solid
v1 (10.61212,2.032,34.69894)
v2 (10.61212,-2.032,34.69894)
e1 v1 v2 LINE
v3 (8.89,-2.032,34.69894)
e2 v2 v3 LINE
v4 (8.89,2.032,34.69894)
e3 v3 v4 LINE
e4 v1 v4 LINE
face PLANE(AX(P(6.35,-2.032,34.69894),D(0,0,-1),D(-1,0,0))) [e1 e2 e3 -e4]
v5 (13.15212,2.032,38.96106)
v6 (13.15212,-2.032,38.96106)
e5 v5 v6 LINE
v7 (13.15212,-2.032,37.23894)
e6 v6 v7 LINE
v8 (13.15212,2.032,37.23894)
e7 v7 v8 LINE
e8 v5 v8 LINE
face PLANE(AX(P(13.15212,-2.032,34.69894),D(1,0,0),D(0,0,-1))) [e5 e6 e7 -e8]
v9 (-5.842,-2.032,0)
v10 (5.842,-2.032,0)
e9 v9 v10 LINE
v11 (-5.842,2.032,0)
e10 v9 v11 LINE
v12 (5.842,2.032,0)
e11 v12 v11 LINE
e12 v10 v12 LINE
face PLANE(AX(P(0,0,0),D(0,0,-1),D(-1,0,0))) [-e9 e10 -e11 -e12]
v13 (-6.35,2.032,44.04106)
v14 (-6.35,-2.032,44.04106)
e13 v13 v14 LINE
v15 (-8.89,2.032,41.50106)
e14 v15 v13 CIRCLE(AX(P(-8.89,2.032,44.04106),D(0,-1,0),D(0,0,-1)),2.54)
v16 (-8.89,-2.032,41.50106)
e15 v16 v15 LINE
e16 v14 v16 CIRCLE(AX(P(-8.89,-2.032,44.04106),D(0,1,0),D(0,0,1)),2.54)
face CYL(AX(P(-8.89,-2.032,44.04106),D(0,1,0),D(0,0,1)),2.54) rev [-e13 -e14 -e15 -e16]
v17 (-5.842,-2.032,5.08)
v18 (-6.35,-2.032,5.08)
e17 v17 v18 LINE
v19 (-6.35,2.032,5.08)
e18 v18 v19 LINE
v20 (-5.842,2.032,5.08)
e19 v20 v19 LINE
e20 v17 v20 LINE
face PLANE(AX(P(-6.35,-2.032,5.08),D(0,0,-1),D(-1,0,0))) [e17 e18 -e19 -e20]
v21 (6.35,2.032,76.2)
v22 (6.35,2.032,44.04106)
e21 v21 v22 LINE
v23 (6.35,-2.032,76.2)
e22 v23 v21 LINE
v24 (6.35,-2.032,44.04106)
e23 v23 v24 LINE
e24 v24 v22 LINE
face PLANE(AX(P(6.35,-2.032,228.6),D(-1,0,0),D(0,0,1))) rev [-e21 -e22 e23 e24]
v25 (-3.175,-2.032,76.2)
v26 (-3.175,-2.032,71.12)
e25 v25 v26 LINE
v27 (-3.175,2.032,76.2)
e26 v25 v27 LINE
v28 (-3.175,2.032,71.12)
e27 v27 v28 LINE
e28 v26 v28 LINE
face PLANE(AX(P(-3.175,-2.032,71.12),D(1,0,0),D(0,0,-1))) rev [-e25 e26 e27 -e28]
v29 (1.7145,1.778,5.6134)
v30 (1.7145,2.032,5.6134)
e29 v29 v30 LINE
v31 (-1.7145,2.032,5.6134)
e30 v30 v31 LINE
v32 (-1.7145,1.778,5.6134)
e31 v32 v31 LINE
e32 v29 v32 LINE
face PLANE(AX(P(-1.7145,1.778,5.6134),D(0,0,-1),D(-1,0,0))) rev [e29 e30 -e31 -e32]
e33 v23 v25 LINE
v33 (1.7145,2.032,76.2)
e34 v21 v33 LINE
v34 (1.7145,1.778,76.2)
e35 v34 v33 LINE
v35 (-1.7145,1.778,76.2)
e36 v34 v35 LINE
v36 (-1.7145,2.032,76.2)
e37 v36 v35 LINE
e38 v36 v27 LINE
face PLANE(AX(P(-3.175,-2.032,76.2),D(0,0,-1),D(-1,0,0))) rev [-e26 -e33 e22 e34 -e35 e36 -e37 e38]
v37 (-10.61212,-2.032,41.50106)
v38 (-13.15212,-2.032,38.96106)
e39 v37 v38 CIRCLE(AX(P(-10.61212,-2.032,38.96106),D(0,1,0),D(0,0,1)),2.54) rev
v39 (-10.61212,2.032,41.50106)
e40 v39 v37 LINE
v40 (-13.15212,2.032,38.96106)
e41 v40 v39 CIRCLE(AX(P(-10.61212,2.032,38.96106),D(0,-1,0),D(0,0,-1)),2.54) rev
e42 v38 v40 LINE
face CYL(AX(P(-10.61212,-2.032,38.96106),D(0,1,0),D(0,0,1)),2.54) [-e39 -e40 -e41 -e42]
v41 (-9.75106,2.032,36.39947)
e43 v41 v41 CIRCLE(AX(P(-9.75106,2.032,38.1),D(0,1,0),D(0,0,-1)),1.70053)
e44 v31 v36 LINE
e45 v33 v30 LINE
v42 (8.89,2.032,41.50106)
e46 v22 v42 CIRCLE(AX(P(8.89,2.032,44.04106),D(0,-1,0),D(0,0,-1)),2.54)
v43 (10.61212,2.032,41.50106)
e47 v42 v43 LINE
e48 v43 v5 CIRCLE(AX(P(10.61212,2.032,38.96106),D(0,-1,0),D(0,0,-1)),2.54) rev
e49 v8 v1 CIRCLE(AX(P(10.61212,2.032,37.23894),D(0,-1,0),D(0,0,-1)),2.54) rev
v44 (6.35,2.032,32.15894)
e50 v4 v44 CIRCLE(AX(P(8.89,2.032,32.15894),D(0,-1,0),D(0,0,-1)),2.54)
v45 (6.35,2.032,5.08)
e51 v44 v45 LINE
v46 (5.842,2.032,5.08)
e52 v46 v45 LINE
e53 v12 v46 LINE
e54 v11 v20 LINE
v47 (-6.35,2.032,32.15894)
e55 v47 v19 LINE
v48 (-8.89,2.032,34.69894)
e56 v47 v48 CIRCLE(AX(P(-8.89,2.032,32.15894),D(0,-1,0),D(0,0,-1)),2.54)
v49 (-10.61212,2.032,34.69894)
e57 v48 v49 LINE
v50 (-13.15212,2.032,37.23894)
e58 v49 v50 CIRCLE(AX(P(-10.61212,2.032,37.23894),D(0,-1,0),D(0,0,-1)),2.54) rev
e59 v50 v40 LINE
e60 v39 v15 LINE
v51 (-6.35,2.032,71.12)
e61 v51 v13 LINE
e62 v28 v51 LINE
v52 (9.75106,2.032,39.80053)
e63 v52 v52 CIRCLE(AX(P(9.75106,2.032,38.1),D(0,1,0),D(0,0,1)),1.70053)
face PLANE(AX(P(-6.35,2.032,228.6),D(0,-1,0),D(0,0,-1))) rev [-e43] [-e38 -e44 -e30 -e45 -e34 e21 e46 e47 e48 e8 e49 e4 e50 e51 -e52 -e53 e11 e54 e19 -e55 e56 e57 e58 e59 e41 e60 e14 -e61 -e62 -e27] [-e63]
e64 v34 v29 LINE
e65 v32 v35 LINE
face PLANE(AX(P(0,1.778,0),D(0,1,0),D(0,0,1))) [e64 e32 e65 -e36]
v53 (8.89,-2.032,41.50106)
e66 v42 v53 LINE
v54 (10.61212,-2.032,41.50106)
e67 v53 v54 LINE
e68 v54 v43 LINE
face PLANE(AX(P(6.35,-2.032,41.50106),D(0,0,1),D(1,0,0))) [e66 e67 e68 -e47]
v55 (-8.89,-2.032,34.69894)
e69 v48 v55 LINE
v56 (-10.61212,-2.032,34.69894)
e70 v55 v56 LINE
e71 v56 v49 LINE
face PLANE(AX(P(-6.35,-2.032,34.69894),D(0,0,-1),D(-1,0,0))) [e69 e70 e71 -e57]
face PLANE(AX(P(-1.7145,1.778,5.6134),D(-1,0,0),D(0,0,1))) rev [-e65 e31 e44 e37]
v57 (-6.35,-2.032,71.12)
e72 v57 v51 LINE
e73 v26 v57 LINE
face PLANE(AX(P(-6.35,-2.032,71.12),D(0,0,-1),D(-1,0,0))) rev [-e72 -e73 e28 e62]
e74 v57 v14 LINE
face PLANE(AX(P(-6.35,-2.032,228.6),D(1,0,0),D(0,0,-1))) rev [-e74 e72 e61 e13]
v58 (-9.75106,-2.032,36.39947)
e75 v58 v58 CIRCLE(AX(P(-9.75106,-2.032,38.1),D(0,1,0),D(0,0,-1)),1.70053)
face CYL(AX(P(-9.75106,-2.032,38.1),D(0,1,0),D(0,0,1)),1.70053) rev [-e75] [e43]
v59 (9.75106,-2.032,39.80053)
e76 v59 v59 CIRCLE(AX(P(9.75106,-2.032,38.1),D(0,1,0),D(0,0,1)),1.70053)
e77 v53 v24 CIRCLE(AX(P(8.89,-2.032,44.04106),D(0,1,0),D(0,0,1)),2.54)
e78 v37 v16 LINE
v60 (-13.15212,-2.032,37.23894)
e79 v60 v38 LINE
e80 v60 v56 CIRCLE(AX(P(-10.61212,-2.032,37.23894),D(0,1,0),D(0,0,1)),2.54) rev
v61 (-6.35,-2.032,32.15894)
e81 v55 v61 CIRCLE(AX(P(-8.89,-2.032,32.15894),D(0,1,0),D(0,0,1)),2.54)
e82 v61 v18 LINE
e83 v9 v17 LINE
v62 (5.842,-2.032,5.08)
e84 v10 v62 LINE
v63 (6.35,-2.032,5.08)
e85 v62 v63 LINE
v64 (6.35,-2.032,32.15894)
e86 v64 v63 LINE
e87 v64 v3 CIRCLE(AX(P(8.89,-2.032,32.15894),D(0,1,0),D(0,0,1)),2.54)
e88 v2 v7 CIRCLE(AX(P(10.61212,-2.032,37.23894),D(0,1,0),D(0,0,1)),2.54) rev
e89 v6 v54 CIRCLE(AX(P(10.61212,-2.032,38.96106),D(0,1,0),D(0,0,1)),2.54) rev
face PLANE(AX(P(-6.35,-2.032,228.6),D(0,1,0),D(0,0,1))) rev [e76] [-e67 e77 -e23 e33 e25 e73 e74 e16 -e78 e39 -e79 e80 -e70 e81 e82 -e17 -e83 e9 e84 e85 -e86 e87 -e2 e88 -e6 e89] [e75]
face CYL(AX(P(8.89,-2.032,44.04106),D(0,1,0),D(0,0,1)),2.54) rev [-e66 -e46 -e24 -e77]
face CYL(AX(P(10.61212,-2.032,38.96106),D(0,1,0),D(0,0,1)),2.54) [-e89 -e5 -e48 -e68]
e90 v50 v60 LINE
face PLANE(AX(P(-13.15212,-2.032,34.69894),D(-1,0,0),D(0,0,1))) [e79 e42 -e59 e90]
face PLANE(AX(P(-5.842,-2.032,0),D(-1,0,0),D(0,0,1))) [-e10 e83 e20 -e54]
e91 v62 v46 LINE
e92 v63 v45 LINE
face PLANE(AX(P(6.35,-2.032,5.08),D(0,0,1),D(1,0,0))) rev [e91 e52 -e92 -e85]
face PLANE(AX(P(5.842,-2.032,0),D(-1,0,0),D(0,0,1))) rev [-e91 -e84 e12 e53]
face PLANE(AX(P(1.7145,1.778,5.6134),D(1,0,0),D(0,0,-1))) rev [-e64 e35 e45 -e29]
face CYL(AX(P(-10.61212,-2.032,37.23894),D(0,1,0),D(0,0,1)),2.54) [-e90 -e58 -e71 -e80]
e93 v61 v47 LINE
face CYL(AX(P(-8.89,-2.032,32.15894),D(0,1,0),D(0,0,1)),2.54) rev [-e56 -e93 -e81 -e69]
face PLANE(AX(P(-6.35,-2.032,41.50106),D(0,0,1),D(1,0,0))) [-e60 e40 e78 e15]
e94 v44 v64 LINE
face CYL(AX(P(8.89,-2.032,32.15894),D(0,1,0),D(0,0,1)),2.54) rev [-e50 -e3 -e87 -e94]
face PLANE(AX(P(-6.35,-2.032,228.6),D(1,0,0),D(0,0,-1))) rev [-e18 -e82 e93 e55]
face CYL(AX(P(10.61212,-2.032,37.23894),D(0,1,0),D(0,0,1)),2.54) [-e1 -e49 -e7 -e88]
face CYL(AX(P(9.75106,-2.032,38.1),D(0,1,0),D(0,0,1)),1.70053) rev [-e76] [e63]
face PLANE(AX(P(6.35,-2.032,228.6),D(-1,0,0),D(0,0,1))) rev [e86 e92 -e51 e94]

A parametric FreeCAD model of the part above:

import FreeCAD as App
import Part
import Sketcher

V = App.Vector
Q = App.Units.Quantity


def edges_at(feature, points):
    """Names of the edges that pass closest to the given points."""
    edges = feature.Shape.Edges
    near = lambda p: min(range(len(edges)), key=lambda i: edges[i].distToShape(Part.Vertex(*p))[0])
    return sorted({f"Edge{near(p) + 1}" for p in points})


def add_polygon(sketch, points):
    """Adds a closed chain of lines whose ends are joined by coincident constraints."""
    first, n = sketch.GeometryCount, len(points)
    for a, b in zip(points, points[1:] + points[:1]):
        sketch.addGeometry(Part.LineSegment(App.Vector(*a, 0), App.Vector(*b, 0)), False)
    for i in range(n):
        sketch.addConstraint(Sketcher.Constraint("Coincident", first + i, 2, first + (i + 1) % n, 1))

doc = App.newDocument("Part")
params = doc.addObject("Spreadsheet::Sheet", "Params")
for row, (alias, value) in enumerate([
    ("sketch1_width", "0.5 in"),
    ("sketch1_height", "0.16 in"),
    ("pad1_length", "9 in"),
    ("sketch2_width", "0.135 in"),
    ("sketch2_height", "8.558 in"),
    ("pocket1_length", "0.01 in"),
    ("sketch3_height", "0.2 in"),
    ("sketch3_width", "0.02 in"),
    ("sketch4_height", "0.2 in"),
    ("sketch4_width", "0.02 in"),
    ("sketch5_width", "0.125 in"),
    ("sketch6_height", "6 in"),
    ("sketch6_width", "0.5 in"),
    ("sketch6_height2", "6.2 in"),
    ("sketch6_width2", "0.375 in"),
    ("pad2_length", "0.16 in"),
    ("fillet_radius", "0.1 in"),
], start=1):
    params.set(f"A{row}", alias)
    params.set(f"B{row}", "=" + value)
    params.setAlias(f"B{row}", alias)

body = doc.addObject("PartDesign::Body", "Body")

# Sketch on XY plane
sketch1 = body.newObject("Sketcher::SketchObject", "Sketch")
sketch1.AttachmentSupport = (doc.getObject("XY_Plane"), [""])
sketch1.MapMode = "FlatFace"
add_polygon(sketch1, [(-6.35, 2.032), (-6.35, -2.032), (6.35, -2.032), (6.35, 2.032)])  # lines 0-3
sketch1.addConstraint([
    Sketcher.Constraint("Vertical", 0),
    Sketcher.Constraint("Horizontal", 1),
    Sketcher.Constraint("Vertical", 2),
    Sketcher.Constraint("Horizontal", 3),
    Sketcher.Constraint("Symmetric", 0, 2, 2, 2, -1, 1),
    Sketcher.Constraint("DistanceX", 1, 1, 1, 2, Q("0.5 in")),
    Sketcher.Constraint("DistanceY", 0, 2, 0, 1, Q("0.16 in")),
])
sketch1.setExpression("Constraints[9]", "Params.sketch1_width")
sketch1.setExpression("Constraints[10]", "Params.sketch1_height")
pad1 = body.newObject("PartDesign::Pad", "Pad")
pad1.Profile = sketch1
pad1.setExpression("Length", "Params.pad1_length")

# Sketch on XZ plane
sketch2 = body.newObject("Sketcher::SketchObject", "Sketch001")
sketch2.AttachmentSupport = (doc.getObject("XZ_Plane"), [""])
sketch2.MapMode = "FlatFace"
sketch2.AttachmentOffset = App.Placement(V(0, 0, -0.08 * 25.4), App.Rotation())
add_polygon(sketch2, [(-1.7145, 5.6134), (-1.7145, 222.9866), (1.7145, 222.9866), (1.7145, 5.6134)])  # lines 0-3
sketch2.addConstraint([
    Sketcher.Constraint("Vertical", 0),
    Sketcher.Constraint("Horizontal", 1),
    Sketcher.Constraint("Vertical", 2),
    Sketcher.Constraint("Horizontal", 3),
    Sketcher.Constraint("DistanceX", 1, 1, 1, 2, Q("0.135 in")),
    Sketcher.Constraint("DistanceY", 0, 1, 0, 2, Q("8.558 in")),
    Sketcher.Constraint("DistanceY", -1, 1, 0, 2, Q("8.779 in")),
    Sketcher.Constraint("DistanceX", 0, 2, -1, 1, Q("0.0675 in")),
])
sketch2.setExpression("Constraints[8]", "Params.sketch2_width")
sketch2.setExpression("Constraints[9]", "Params.sketch2_height")
pocket1 = body.newObject("PartDesign::Pocket", "Pocket")
pocket1.Profile = sketch2
pocket1.setExpression("Length", "Params.pocket1_length")
pocket1.Reversed = True

# Sketch on XZ plane
sketch3 = body.newObject("Sketcher::SketchObject", "Sketch002")
sketch3.AttachmentSupport = (doc.getObject("XZ_Plane"), [""])
sketch3.MapMode = "FlatFace"
sketch3.AttachmentOffset = App.Placement(V(0, 0, -0.08 * 25.4), App.Rotation())
add_polygon(sketch3, [(-6.35, 223.52), (-6.35, 228.6), (-5.842, 228.6), (-5.842, 223.52)])  # lines 0-3
sketch3.addConstraint([
    Sketcher.Constraint("Vertical", 0),
    Sketcher.Constraint("Horizontal", 1),
    Sketcher.Constraint("Vertical", 2),
    Sketcher.Constraint("Horizontal", 3),
    Sketcher.Constraint("DistanceY", 0, 1, 0, 2, Q("0.2 in")),
    Sketcher.Constraint("DistanceY", -1, 1, 0, 2, Q("9 in")),
    Sketcher.Constraint("DistanceX", 1, 1, 1, 2, Q("0.02 in")),
    Sketcher.Constraint("DistanceX", 0, 2, -1, 1, Q("0.25 in")),
])
sketch3.setExpression("Constraints[8]", "Params.sketch3_height")
sketch3.setExpression("Constraints[10]", "Params.sketch3_width")
pocket2 = body.newObject("PartDesign::Pocket", "Pocket001")
pocket2.Profile = sketch3
pocket2.Type = "ThroughAll"
pocket2.Reversed = True
doc.recompute()

datumplane = body.newObject("PartDesign::Plane", "DatumPlane")
datumplane.AttachmentSupport = (doc.getObject("XY_Plane"), [""])
datumplane.MapMode = "FlatFace"
datumplane.AttachmentOffset = App.Placement(V(0, 0, 4.5 * 25.4), App.Rotation())
mirrored = body.newObject("PartDesign::Mirrored", "Mirrored")
mirrored.Originals = [pocket2]
mirrored.MirrorPlane = (datumplane, [""])
body.Tip = mirrored
doc.recompute()

mirrored2 = body.newObject("PartDesign::Mirrored", "Mirrored001")
mirrored2.Originals = [pocket2]
mirrored2.MirrorPlane = (doc.getObject("YZ_Plane"), [""])
body.Tip = mirrored2

# Sketch on XZ plane
sketch4 = body.newObject("Sketcher::SketchObject", "Sketch003")
sketch4.AttachmentSupport = (doc.getObject("XZ_Plane"), [""])
sketch4.MapMode = "FlatFace"
sketch4.AttachmentOffset = App.Placement(V(0, 0, -0.08 * 25.4), App.Rotation())
add_polygon(sketch4, [(6.35, 5.08), (6.35, 0), (5.842, 0), (5.842, 5.08)])  # lines 0-3
sketch4.addConstraint([
    Sketcher.Constraint("Vertical", 0),
    Sketcher.Constraint("Horizontal", 1),
    Sketcher.Constraint("Vertical", 2),
    Sketcher.Constraint("Horizontal", 3),
    Sketcher.Constraint("PointOnObject", 0, 2, -1),
    Sketcher.Constraint("DistanceY", 0, 2, 0, 1, Q("0.2 in")),
    Sketcher.Constraint("DistanceX", 1, 2, 1, 1, Q("0.02 in")),
    Sketcher.Constraint("DistanceX", -1, 1, 0, 2, Q("0.25 in")),
])
sketch4.setExpression("Constraints[9]", "Params.sketch4_height")
sketch4.setExpression("Constraints[10]", "Params.sketch4_width")
pocket3 = body.newObject("PartDesign::Pocket", "Pocket002")
pocket3.Profile = sketch4
pocket3.Type = "ThroughAll"
pocket3.Reversed = True

# Sketch on XZ plane
sketch5 = body.newObject("Sketcher::SketchObject", "Sketch004")
sketch5.AttachmentSupport = (doc.getObject("XZ_Plane"), [""])
sketch5.MapMode = "FlatFace"
sketch5.AttachmentOffset = App.Placement(V(0, 0, -0.08 * 25.4), App.Rotation())
add_polygon(sketch5, [(-5.842, 225.425), (-5.842, 228.6), (-2.667, 228.6), (-2.667, 225.425)])  # lines 0-3
sketch5.addConstraint([
    Sketcher.Constraint("Vertical", 0),
    Sketcher.Constraint("Horizontal", 1),
    Sketcher.Constraint("Vertical", 2),
    Sketcher.Constraint("Horizontal", 3),
    Sketcher.Constraint("Equal", 3, 0),
    Sketcher.Constraint("DistanceY", -1, 1, 0, 2, Q("9 in")),
    Sketcher.Constraint("DistanceX", 1, 1, 1, 2, Q("0.125 in")),
    Sketcher.Constraint("DistanceX", 0, 2, -1, 1, Q("0.23 in")),
])
sketch5.setExpression("Constraints[10]", "Params.sketch5_width")
pocket4 = body.newObject("PartDesign::Pocket", "Pocket003")
pocket4.Profile = sketch5
pocket4.Type = "ThroughAll"
pocket4.Reversed = True

# Sketch on XZ plane
sketch6 = body.newObject("Sketcher::SketchObject", "Sketch005")
sketch6.AttachmentSupport = (doc.getObject("XZ_Plane"), [""])
sketch6.MapMode = "FlatFace"
sketch6.AttachmentOffset = App.Placement(V(0, 0, -0.08 * 25.4), App.Rotation())
add_polygon(sketch6, [(-6.35, 71.12), (-6.35, 228.6), (6.35, 228.6), (6.35, 76.2), (-3.175, 76.2), (-3.175, 71.12)])  # lines 0-5
sketch6.addConstraint([
    Sketcher.Constraint("Vertical", 0),
    Sketcher.Constraint("Horizontal", 1),
    Sketcher.Constraint("Vertical", 2),
    Sketcher.Constraint("Horizontal", 3),
    Sketcher.Constraint("Vertical", 4),
    Sketcher.Constraint("Horizontal", 5),
    Sketcher.Constraint("DistanceY", 2, 2, 2, 1, Q("6 in")),
    Sketcher.Constraint("DistanceX", 1, 1, 1, 2, Q("0.5 in")),
    Sketcher.Constraint("DistanceY", 0, 1, 0, 2, Q("6.2 in")),
    Sketcher.Constraint("DistanceY", -1, 1, 0, 2, Q("9 in")),
    Sketcher.Constraint("DistanceX", 3, 2, 3, 1, Q("0.375 in")),
    Sketcher.Constraint("DistanceX", 0, 2, -1, 1, Q("0.25 in")),
])
sketch6.setExpression("Constraints[12]", "Params.sketch6_height")
sketch6.setExpression("Constraints[13]", "Params.sketch6_width")
sketch6.setExpression("Constraints[14]", "Params.sketch6_height2")
sketch6.setExpression("Constraints[16]", "Params.sketch6_width2")
pocket5 = body.newObject("PartDesign::Pocket", "Pocket004")
pocket5.Profile = sketch6
pocket5.Type = "ThroughAll"
pocket5.Reversed = True

# Sketch on XZ plane
sketch7 = body.newObject("Sketcher::SketchObject", "Sketch006")
sketch7.AttachmentSupport = (doc.getObject("XZ_Plane"), [""])
sketch7.MapMode = "FlatFace"
sketch7.AttachmentOffset = App.Placement(V(0, 0, -0.08 * 25.4), App.Rotation())
add_polygon(sketch7, [(6.35, 34.69894), (6.35, 41.50106), (13.15212, 41.50106), (13.15212, 34.69894)])  # lines 0-3
sketch7.addGeometry(Part.Circle(V(9.75106, 38.1, 0), V(0, 0, 1), 1.70053), False)  # 4
add_polygon(sketch7, [(-13.15212, 34.69894), (-13.15212, 41.50106), (-6.35, 41.50106), (-6.35, 34.69894)])  # lines 5-8
sketch7.addGeometry(Part.Circle(V(-9.75106, 38.1, 0), V(0, 0, 1), 1.70053), False)  # 9
sketch7.addConstraint([
    Sketcher.Constraint("Vertical", 0),
    Sketcher.Constraint("Horizontal", 1),
    Sketcher.Constraint("Vertical", 2),
    Sketcher.Constraint("Horizontal", 3),
    Sketcher.Constraint("Vertical", 5),
    Sketcher.Constraint("Horizontal", 6),
    Sketcher.Constraint("Vertical", 7),
    Sketcher.Constraint("Horizontal", 8),
    Sketcher.Constraint("Equal", 4, 9),
    Sketcher.Constraint("Symmetric", 4, 3, 9, 3, -2),
    Sketcher.Constraint("Symmetric", 1, 2, 5, 2, -2),
    Sketcher.Constraint("Symmetric", 3, 2, 7, 2, -2),
    Sketcher.Constraint("Equal", 8, 0),
    Sketcher.Constraint("Diameter", 4, Q("0.1339 in")),
    Sketcher.Constraint("DistanceY", -1, 1, 4, 3, Q("1.5 in")),
    Sketcher.Constraint("DistanceX", 6, 2, 0, 2, Q("0.5 in")),
    Sketcher.Constraint("DistanceX", 1, 1, 1, 2, Q("0.2678 in")),
    Sketcher.Constraint("DistanceX", -1, 1, 4, 3, Q("0.3839 in")),
    Sketcher.Constraint("DistanceY", -1, 1, 0, 2, Q("1.6339 in")),
])
pad2 = body.newObject("PartDesign::Pad", "Pad001")
pad2.Profile = sketch7
pad2.setExpression("Length", "Params.pad2_length")
doc.recompute()

fillet = body.newObject("PartDesign::Fillet", "Fillet")
fillet.Base = (pad2, edges_at(pad2, [
    (6.35, 0, 41.501),
    (13.152, 0, 41.501),
    (13.152, 0, 34.699),
    (6.35, 0, 34.699),
    (-6.35, 0, 34.699),
    (-13.152, 0, 34.699),
    (-13.152, 0, 41.501),
    (-6.35, 0, 41.501),
]))
fillet.setExpression("Radius", "Params.fillet_radius")

doc.recompute()
